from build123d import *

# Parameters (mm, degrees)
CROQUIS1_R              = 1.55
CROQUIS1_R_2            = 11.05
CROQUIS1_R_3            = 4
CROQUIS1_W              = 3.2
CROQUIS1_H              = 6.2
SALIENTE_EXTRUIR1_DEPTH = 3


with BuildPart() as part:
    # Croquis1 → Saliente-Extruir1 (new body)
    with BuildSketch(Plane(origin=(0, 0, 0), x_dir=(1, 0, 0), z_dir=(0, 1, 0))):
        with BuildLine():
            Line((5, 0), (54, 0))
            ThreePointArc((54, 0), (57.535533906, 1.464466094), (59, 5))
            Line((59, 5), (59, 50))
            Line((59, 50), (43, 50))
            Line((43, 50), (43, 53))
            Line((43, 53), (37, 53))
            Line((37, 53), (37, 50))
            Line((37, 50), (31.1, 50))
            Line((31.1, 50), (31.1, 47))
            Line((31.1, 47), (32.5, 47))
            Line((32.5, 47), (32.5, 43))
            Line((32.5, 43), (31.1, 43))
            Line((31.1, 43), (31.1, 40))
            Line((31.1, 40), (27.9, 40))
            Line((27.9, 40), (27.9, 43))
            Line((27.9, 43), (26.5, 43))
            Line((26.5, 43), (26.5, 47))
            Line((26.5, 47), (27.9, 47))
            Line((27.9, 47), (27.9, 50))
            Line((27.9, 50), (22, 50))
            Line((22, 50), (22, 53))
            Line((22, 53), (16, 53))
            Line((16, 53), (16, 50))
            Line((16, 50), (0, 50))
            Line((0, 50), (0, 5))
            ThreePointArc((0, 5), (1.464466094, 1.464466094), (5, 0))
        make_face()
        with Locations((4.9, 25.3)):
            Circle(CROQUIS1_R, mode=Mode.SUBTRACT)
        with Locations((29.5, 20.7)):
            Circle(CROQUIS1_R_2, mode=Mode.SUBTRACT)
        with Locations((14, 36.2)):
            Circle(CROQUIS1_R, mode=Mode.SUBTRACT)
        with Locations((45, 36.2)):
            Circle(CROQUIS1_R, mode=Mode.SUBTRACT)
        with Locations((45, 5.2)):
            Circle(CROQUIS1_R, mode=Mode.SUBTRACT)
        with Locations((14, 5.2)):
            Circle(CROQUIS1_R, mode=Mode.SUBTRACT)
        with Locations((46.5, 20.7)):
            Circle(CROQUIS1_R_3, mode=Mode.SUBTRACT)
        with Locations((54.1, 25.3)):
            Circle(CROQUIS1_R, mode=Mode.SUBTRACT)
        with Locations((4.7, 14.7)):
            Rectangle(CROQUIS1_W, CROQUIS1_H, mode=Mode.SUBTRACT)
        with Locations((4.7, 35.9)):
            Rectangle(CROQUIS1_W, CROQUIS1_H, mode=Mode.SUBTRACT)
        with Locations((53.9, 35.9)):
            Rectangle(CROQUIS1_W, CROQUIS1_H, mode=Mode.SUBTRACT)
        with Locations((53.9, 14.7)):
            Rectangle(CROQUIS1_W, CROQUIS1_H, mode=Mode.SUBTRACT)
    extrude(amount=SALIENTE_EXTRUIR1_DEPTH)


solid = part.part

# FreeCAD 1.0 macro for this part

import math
import FreeCAD as App
import Part
import Sketcher
from FreeCAD import Vector
Q = App.Units.Quantity

doc = App.newDocument("Part")
body = doc.addObject("PartDesign::Body", "Body")

sketch1 = body.newObject("Sketcher::SketchObject", "Sketch")
sketch1.AttachmentSupport = (doc.getObject("XZ_Plane"), [""])
sketch1.MapMode = "FlatFace"
sketch1.addGeometry(Part.LineSegment(Vector(5, 0, 0), Vector(54, 0, 0)), False)
sketch1.addGeometry(Part.ArcOfCircle(Part.Circle(Vector(54, -5, 0), Vector(0, 0, 1), 5), math.radians(0), math.radians(90)), False)
sketch1.addGeometry(Part.LineSegment(Vector(59, -5, 0), Vector(59, -50, 0)), False)
sketch1.addGeometry(Part.LineSegment(Vector(59, -50, 0), Vector(43, -50, 0)), False)
sketch1.addGeometry(Part.LineSegment(Vector(43, -50, 0), Vector(43, -53, 0)), False)
sketch1.addGeometry(Part.LineSegment(Vector(43, -53, 0), Vector(37, -53, 0)), False)
sketch1.addGeometry(Part.LineSegment(Vector(37, -53, 0), Vector(37, -50, 0)), False)
sketch1.addGeometry(Part.LineSegment(Vector(37, -50, 0), Vector(31.1, -50, 0)), False)
sketch1.addGeometry(Part.LineSegment(Vector(31.1, -50, 0), Vector(31.1, -47, 0)), False)
sketch1.addGeometry(Part.LineSegment(Vector(31.1, -47, 0), Vector(32.5, -47, 0)), False)
sketch1.addGeometry(Part.LineSegment(Vector(32.5, -47, 0), Vector(32.5, -43, 0)), False)
sketch1.addGeometry(Part.LineSegment(Vector(32.5, -43, 0), Vector(31.1, -43, 0)), False)
sketch1.addGeometry(Part.LineSegment(Vector(31.1, -43, 0), Vector(31.1, -40, 0)), False)
sketch1.addGeometry(Part.LineSegment(Vector(31.1, -40, 0), Vector(27.9, -40, 0)), False)
sketch1.addGeometry(Part.LineSegment(Vector(27.9, -40, 0), Vector(27.9, -43, 0)), False)
sketch1.addGeometry(Part.LineSegment(Vector(27.9, -43, 0), Vector(26.5, -43, 0)), False)
sketch1.addGeometry(Part.LineSegment(Vector(26.5, -43, 0), Vector(26.5, -47, 0)), False)
sketch1.addGeometry(Part.LineSegment(Vector(26.5, -47, 0), Vector(27.9, -47, 0)), False)
sketch1.addGeometry(Part.LineSegment(Vector(27.9, -47, 0), Vector(27.9, -50, 0)), False)
sketch1.addGeometry(Part.LineSegment(Vector(27.9, -50, 0), Vector(22, -50, 0)), False)
sketch1.addGeometry(Part.LineSegment(Vector(22, -50, 0), Vector(22, -53, 0)), False)
sketch1.addGeometry(Part.LineSegment(Vector(22, -53, 0), Vector(16, -53, 0)), False)
sketch1.addGeometry(Part.LineSegment(Vector(16, -53, 0), Vector(16, -50, 0)), False)
sketch1.addGeometry(Part.LineSegment(Vector(16, -50, 0), Vector(0, -50, 0)), False)
sketch1.addGeometry(Part.LineSegment(Vector(0, -50, 0), Vector(0, -5, 0)), False)
sketch1.addGeometry(Part.ArcOfCircle(Part.Circle(Vector(5, -5, 0), Vector(0, 0, 1), 5), math.radians(90), math.radians(180)), False)
sketch1.addGeometry(Part.Circle(Vector(14, -5.2, 0), Vector(0, 0, 1), 1.6), False)
sketch1.addGeometry(Part.LineSegment(Vector(6.3, -11.6, 0), Vector(3.1, -11.6, 0)), False)
sketch1.addGeometry(Part.LineSegment(Vector(3.1, -11.6, 0), Vector(3.1, -17.8, 0)), False)
sketch1.addGeometry(Part.LineSegment(Vector(3.1, -17.8, 0), Vector(6.3, -17.8, 0)), False)
sketch1.addGeometry(Part.LineSegment(Vector(6.3, -17.8, 0), Vector(6.3, -11.6, 0)), False)
sketch1.addGeometry(Part.Circle(Vector(45, -5.2, 0), Vector(0, 0, 1), 1.6), False)
sketch1.addGeometry(Part.Circle(Vector(29.5, -20.7, 0), Vector(0, 0, 1), 11.1), False)
sketch1.addGeometry(Part.LineSegment(Vector(55.5, -11.6, 0), Vector(52.3, -11.6, 0)), False)
sketch1.addGeometry(Part.LineSegment(Vector(52.3, -11.6, 0), Vector(52.3, -17.8, 0)), False)
sketch1.addGeometry(Part.LineSegment(Vector(52.3, -17.8, 0), Vector(55.5, -17.8, 0)), False)
sketch1.addGeometry(Part.LineSegment(Vector(55.5, -17.8, 0), Vector(55.5, -11.6, 0)), False)
sketch1.addGeometry(Part.Circle(Vector(46.5, -20.7, 0), Vector(0, 0, 1), 4), False)
sketch1.addGeometry(Part.Circle(Vector(4.9, -25.3, 0), Vector(0, 0, 1), 1.6), False)
sketch1.addGeometry(Part.LineSegment(Vector(6.3, -32.8, 0), Vector(3.1, -32.8, 0)), False)
sketch1.addGeometry(Part.LineSegment(Vector(3.1, -32.8, 0), Vector(3.1, -39, 0)), False)
sketch1.addGeometry(Part.LineSegment(Vector(3.1, -39, 0), Vector(6.3, -39, 0)), False)
sketch1.addGeometry(Part.LineSegment(Vector(6.3, -39, 0), Vector(6.3, -32.8, 0)), False)
sketch1.addGeometry(Part.Circle(Vector(14, -36.2, 0), Vector(0, 0, 1), 1.6), False)
sketch1.addGeometry(Part.Circle(Vector(54.1, -25.3, 0), Vector(0, 0, 1), 1.6), False)
sketch1.addGeometry(Part.Circle(Vector(45, -36.2, 0), Vector(0, 0, 1), 1.6), False)
sketch1.addGeometry(Part.LineSegment(Vector(55.5, -32.8, 0), Vector(52.3, -32.8, 0)), False)
sketch1.addGeometry(Part.LineSegment(Vector(52.3, -32.8, 0), Vector(52.3, -39, 0)), False)
sketch1.addGeometry(Part.LineSegment(Vector(52.3, -39, 0), Vector(55.5, -39, 0)), False)
sketch1.addGeometry(Part.LineSegment(Vector(55.5, -39, 0), Vector(55.5, -32.8, 0)), False)
sketch1.addConstraint(Sketcher.Constraint("Tangent", 0, 2, 1, 2))
sketch1.addConstraint(Sketcher.Constraint("Tangent", 1, 1, 2, 1))
sketch1.addConstraint(Sketcher.Constraint("Coincident", 2, 2, 3, 1))
sketch1.addConstraint(Sketcher.Constraint("Coincident", 3, 2, 4, 1))
sketch1.addConstraint(Sketcher.Constraint("Coincident", 4, 2, 5, 1))
sketch1.addConstraint(Sketcher.Constraint("Coincident", 5, 2, 6, 1))
sketch1.addConstraint(Sketcher.Constraint("Coincident", 6, 2, 7, 1))
sketch1.addConstraint(Sketcher.Constraint("Coincident", 7, 2, 8, 1))
sketch1.addConstraint(Sketcher.Constraint("Coincident", 8, 2, 9, 1))
sketch1.addConstraint(Sketcher.Constraint("Coincident", 9, 2, 10, 1))
sketch1.addConstraint(Sketcher.Constraint("Coincident", 10, 2, 11, 1))
sketch1.addConstraint(Sketcher.Constraint("Coincident", 11, 2, 12, 1))
sketch1.addConstraint(Sketcher.Constraint("Coincident", 12, 2, 13, 1))
sketch1.addConstraint(Sketcher.Constraint("Coincident", 13, 2, 14, 1))
sketch1.addConstraint(Sketcher.Constraint("Coincident", 14, 2, 15, 1))
sketch1.addConstraint(Sketcher.Constraint("Coincident", 15, 2, 16, 1))
sketch1.addConstraint(Sketcher.Constraint("Coincident", 16, 2, 17, 1))
sketch1.addConstraint(Sketcher.Constraint("Coincident", 17, 2, 18, 1))
sketch1.addConstraint(Sketcher.Constraint("Coincident", 18, 2, 19, 1))
sketch1.addConstraint(Sketcher.Constraint("Coincident", 19, 2, 20, 1))
sketch1.addConstraint(Sketcher.Constraint("Coincident", 20, 2, 21, 1))
sketch1.addConstraint(Sketcher.Constraint("Coincident", 21, 2, 22, 1))
sketch1.addConstraint(Sketcher.Constraint("Coincident", 22, 2, 23, 1))
sketch1.addConstraint(Sketcher.Constraint("Coincident", 23, 2, 24, 1))
sketch1.addConstraint(Sketcher.Constraint("Tangent", 24, 2, 25, 2))
sketch1.addConstraint(Sketcher.Constraint("Tangent", 25, 1, 0, 1))
sketch1.addConstraint(Sketcher.Constraint("Coincident", 27, 2, 28, 1))
sketch1.addConstraint(Sketcher.Constraint("Coincident", 28, 2, 29, 1))
sketch1.addConstraint(Sketcher.Constraint("Coincident", 29, 2, 30, 1))
sketch1.addConstraint(Sketcher.Constraint("Coincident", 30, 2, 27, 1))
sketch1.addConstraint(Sketcher.Constraint("Coincident", 33, 2, 34, 1))
sketch1.addConstraint(Sketcher.Constraint("Coincident", 34, 2, 35, 1))
sketch1.addConstraint(Sketcher.Constraint("Coincident", 35, 2, 36, 1))
sketch1.addConstraint(Sketcher.Constraint("Coincident", 36, 2, 33, 1))
sketch1.addConstraint(Sketcher.Constraint("Coincident", 39, 2, 40, 1))
sketch1.addConstraint(Sketcher.Constraint("Coincident", 40, 2, 41, 1))
sketch1.addConstraint(Sketcher.Constraint("Coincident", 41, 2, 42, 1))
sketch1.addConstraint(Sketcher.Constraint("Coincident", 42, 2, 39, 1))
sketch1.addConstraint(Sketcher.Constraint("Coincident", 46, 2, 47, 1))
sketch1.addConstraint(Sketcher.Constraint("Coincident", 47, 2, 48, 1))
sketch1.addConstraint(Sketcher.Constraint("Coincident", 48, 2, 49, 1))
sketch1.addConstraint(Sketcher.Constraint("Coincident", 49, 2, 46, 1))
sketch1.addConstraint(Sketcher.Constraint("Horizontal", 0))
sketch1.addConstraint(Sketcher.Constraint("Vertical", 2))
sketch1.addConstraint(Sketcher.Constraint("Horizontal", 3))
sketch1.addConstraint(Sketcher.Constraint("Vertical", 4))
sketch1.addConstraint(Sketcher.Constraint("Horizontal", 5))
sketch1.addConstraint(Sketcher.Constraint("Vertical", 6))
sketch1.addConstraint(Sketcher.Constraint("Horizontal", 7))
sketch1.addConstraint(Sketcher.Constraint("Vertical", 8))
sketch1.addConstraint(Sketcher.Constraint("Horizontal", 9))
sketch1.addConstraint(Sketcher.Constraint("Vertical", 10))
sketch1.addConstraint(Sketcher.Constraint("Horizontal", 11))
sketch1.addConstraint(Sketcher.Constraint("Vertical", 12))
sketch1.addConstraint(Sketcher.Constraint("Horizontal", 13))
sketch1.addConstraint(Sketcher.Constraint("Vertical", 14))
sketch1.addConstraint(Sketcher.Constraint("Horizontal", 15))
sketch1.addConstraint(Sketcher.Constraint("Vertical", 16))
sketch1.addConstraint(Sketcher.Constraint("Horizontal", 17))
sketch1.addConstraint(Sketcher.Constraint("Vertical", 18))
sketch1.addConstraint(Sketcher.Constraint("Horizontal", 19))
sketch1.addConstraint(Sketcher.Constraint("Vertical", 20))
sketch1.addConstraint(Sketcher.Constraint("Horizontal", 21))
sketch1.addConstraint(Sketcher.Constraint("Vertical", 22))
sketch1.addConstraint(Sketcher.Constraint("Horizontal", 23))
sketch1.addConstraint(Sketcher.Constraint("Vertical", 24))
sketch1.addConstraint(Sketcher.Constraint("Horizontal", 27))
sketch1.addConstraint(Sketcher.Constraint("Vertical", 28))
sketch1.addConstraint(Sketcher.Constraint("Horizontal", 29))
sketch1.addConstraint(Sketcher.Constraint("Vertical", 30))
sketch1.addConstraint(Sketcher.Constraint("Horizontal", 33))
sketch1.addConstraint(Sketcher.Constraint("Vertical", 34))
sketch1.addConstraint(Sketcher.Constraint("Horizontal", 35))
sketch1.addConstraint(Sketcher.Constraint("Vertical", 36))
sketch1.addConstraint(Sketcher.Constraint("Horizontal", 39))
sketch1.addConstraint(Sketcher.Constraint("Vertical", 40))
sketch1.addConstraint(Sketcher.Constraint("Horizontal", 41))
sketch1.addConstraint(Sketcher.Constraint("Vertical", 42))
sketch1.addConstraint(Sketcher.Constraint("Horizontal", 46))
sketch1.addConstraint(Sketcher.Constraint("Vertical", 47))
sketch1.addConstraint(Sketcher.Constraint("Horizontal", 48))
sketch1.addConstraint(Sketcher.Constraint("Vertical", 49))
sketch1.addConstraint(Sketcher.Constraint("Equal", 1, 25))
sketch1.addConstraint(Sketcher.Constraint("Equal", 26, 31))
sketch1.addConstraint(Sketcher.Constraint("Equal", 31, 38))
sketch1.addConstraint(Sketcher.Constraint("Equal", 38, 43))
sketch1.addConstraint(Sketcher.Constraint("Equal", 43, 44))
sketch1.addConstraint(Sketcher.Constraint("Equal", 44, 45))
sketch1.addConstraint(Sketcher.Constraint("PointOnObject", 0, 2, -1))
sketch1.addConstraint(Sketcher.Constraint("PointOnObject", 23, 2, -2))
sketch1.addConstraint(Sketcher.Constraint("Horizontal", 26, 3, 31, 3))
sketch1.addConstraint(Sketcher.Constraint("Horizontal", 32, 3, 37, 3))
sketch1.addConstraint(Sketcher.Constraint("Horizontal", 38, 3, 44, 3))
sketch1.addConstraint(Sketcher.Constraint("Horizontal", 43, 3, 45, 3))
sketch1.addConstraint(Sketcher.Constraint("Horizontal", 3, 2, 6, 2))
sketch1.addConstraint(Sketcher.Constraint("Horizontal", 11, 2, 14, 2))
sketch1.addConstraint(Sketcher.Constraint("Horizontal", 9, 2, 16, 2))
sketch1.addConstraint(Sketcher.Constraint("Horizontal", 7, 2, 18, 2))
sketch1.addConstraint(Sketcher.Constraint("Horizontal", 5, 2, 20, 2))
sketch1.addConstraint(Sketcher.Constraint("Horizontal", 19, 2, 22, 2))
sketch1.addConstraint(Sketcher.Constraint("Horizontal", 30, 2, 33, 2))
sketch1.addConstraint(Sketcher.Constraint("Horizontal", 29, 2, 34, 2))
sketch1.addConstraint(Sketcher.Constraint("Horizontal", 42, 2, 46, 2))
sketch1.addConstraint(Sketcher.Constraint("Horizontal", 41, 2, 47, 2))
sketch1.addConstraint(Sketcher.Constraint("Vertical", 26, 3, 43, 3))
sketch1.addConstraint(Sketcher.Constraint("Vertical", 31, 3, 45, 3))
sketch1.addConstraint(Sketcher.Constraint("Vertical", 8, 2, 11, 2))
sketch1.addConstraint(Sketcher.Constraint("Vertical", 14, 2, 17, 2))
sketch1.addConstraint(Sketcher.Constraint("Vertical", 28, 2, 39, 2))
sketch1.addConstraint(Sketcher.Constraint("Vertical", 30, 2, 41, 2))
sketch1.addConstraint(Sketcher.Constraint("Vertical", 34, 2, 46, 2))
sketch1.addConstraint(Sketcher.Constraint("Vertical", 36, 2, 48, 2))
sketch1.addConstraint(Sketcher.Constraint("Equal", 11, 15))
sketch1.addConstraint(Sketcher.Constraint("Equal", 7, 19))
sketch1.addConstraint(Sketcher.Constraint("Equal", 5, 21))
sketch1.addConstraint(Sketcher.Constraint("Equal", 3, 23))
sketch1.addConstraint(Sketcher.Constraint("Equal", 13, 27))
sketch1.addConstraint(Sketcher.Constraint("Equal", 29, 33))
sketch1.addConstraint(Sketcher.Constraint("Equal", 6, 8))
sketch1.addConstraint(Sketcher.Constraint("Equal", 8, 12))
sketch1.addConstraint(Sketcher.Constraint("Equal", 36, 40))
sketch1.addConstraint(Sketcher.Constraint("Diameter", 37, Q("8 mm")))
sketch1.addConstraint(Sketcher.Constraint("Radius", 1, Q("5 mm")))
sketch1.addConstraint(Sketcher.Constraint("Diameter", 26, Q("3.1 mm")))
sketch1.addConstraint(Sketcher.Constraint("Diameter", 32, Q("22.1 mm")))
sketch1.addConstraint(Sketcher.Constraint("DistanceX", 0, 1, 0, 2, Q("49 mm")))
sketch1.addConstraint(Sketcher.Constraint("DistanceX", 3, 2, 3, 1, Q("16 mm")))
sketch1.addConstraint(Sketcher.Constraint("DistanceX", 5, 2, 5, 1, Q("6 mm")))
sketch1.addConstraint(Sketcher.Constraint("DistanceY", 2, 2, 2, 1, Q("45 mm")))
sketch1.addConstraint(Sketcher.Constraint("DistanceY", 4, 2, 4, 1, Q("3 mm")))
sketch1.addConstraint(Sketcher.Constraint("DistanceY", 10, 1, 10, 2, Q("4 mm")))
sketch1.addConstraint(Sketcher.Constraint("DistanceX", 7, 2, 7, 1, Q("5.9 mm")))
sketch1.addConstraint(Sketcher.Constraint("DistanceX", 9, 1, 9, 2, Q("1.4 mm")))
sketch1.addConstraint(Sketcher.Constraint("DistanceY", 28, 2, 28, 1, Q("6.2 mm")))
sketch1.addConstraint(Sketcher.Constraint("DistanceX", -1, 1, 26, 3, Q("14 mm")))
sketch1.addConstraint(Sketcher.Constraint("DistanceX", -1, 1, 31, 3, Q("45 mm")))
sketch1.addConstraint(Sketcher.Constraint("DistanceY", 40, 2, -1, 1, Q("39 mm")))
sketch1.addConstraint(Sketcher.Constraint("DistanceX", 32, 3, 37, 3, Q("17 mm")))
sketch1.addConstraint(Sketcher.Constraint("DistanceY", 43, 3, 26, 3, Q("31 mm")))
sketch1.addConstraint(Sketcher.Constraint("DistanceX", 37, 3, 35, 2, Q("9 mm")))
sketch1.addConstraint(Sketcher.Constraint("DistanceY", 39, 2, 28, 2, Q("15 mm")))
sketch1.addConstraint(Sketcher.Constraint("DistanceY", 26, 3, -1, 1, Q("5.2 mm")))
sketch1.addConstraint(Sketcher.Constraint("DistanceX", -1, 1, 32, 3, Q("29.5 mm")))
sketch1.addConstraint(Sketcher.Constraint("DistanceY", 32, 3, -1, 1, Q("20.7 mm")))
sketch1.addConstraint(Sketcher.Constraint("DistanceX", -1, 1, 38, 3, Q("4.9 mm")))
sketch1.addConstraint(Sketcher.Constraint("DistanceY", 38, 3, -1, 1, Q("25.3 mm")))
sketch1.addConstraint(Sketcher.Constraint("DistanceX", -1, 1, 44, 3, Q("54.1 mm")))
sketch1.addConstraint(Sketcher.Constraint("DistanceX", -1, 1, 27, 2, Q("3.1 mm")))
pad1 = body.newObject("PartDesign::Pad", "Pad")
pad1.Profile = sketch1
pad1.Length = 3
pad1.Reversed = True

doc.recompute()
